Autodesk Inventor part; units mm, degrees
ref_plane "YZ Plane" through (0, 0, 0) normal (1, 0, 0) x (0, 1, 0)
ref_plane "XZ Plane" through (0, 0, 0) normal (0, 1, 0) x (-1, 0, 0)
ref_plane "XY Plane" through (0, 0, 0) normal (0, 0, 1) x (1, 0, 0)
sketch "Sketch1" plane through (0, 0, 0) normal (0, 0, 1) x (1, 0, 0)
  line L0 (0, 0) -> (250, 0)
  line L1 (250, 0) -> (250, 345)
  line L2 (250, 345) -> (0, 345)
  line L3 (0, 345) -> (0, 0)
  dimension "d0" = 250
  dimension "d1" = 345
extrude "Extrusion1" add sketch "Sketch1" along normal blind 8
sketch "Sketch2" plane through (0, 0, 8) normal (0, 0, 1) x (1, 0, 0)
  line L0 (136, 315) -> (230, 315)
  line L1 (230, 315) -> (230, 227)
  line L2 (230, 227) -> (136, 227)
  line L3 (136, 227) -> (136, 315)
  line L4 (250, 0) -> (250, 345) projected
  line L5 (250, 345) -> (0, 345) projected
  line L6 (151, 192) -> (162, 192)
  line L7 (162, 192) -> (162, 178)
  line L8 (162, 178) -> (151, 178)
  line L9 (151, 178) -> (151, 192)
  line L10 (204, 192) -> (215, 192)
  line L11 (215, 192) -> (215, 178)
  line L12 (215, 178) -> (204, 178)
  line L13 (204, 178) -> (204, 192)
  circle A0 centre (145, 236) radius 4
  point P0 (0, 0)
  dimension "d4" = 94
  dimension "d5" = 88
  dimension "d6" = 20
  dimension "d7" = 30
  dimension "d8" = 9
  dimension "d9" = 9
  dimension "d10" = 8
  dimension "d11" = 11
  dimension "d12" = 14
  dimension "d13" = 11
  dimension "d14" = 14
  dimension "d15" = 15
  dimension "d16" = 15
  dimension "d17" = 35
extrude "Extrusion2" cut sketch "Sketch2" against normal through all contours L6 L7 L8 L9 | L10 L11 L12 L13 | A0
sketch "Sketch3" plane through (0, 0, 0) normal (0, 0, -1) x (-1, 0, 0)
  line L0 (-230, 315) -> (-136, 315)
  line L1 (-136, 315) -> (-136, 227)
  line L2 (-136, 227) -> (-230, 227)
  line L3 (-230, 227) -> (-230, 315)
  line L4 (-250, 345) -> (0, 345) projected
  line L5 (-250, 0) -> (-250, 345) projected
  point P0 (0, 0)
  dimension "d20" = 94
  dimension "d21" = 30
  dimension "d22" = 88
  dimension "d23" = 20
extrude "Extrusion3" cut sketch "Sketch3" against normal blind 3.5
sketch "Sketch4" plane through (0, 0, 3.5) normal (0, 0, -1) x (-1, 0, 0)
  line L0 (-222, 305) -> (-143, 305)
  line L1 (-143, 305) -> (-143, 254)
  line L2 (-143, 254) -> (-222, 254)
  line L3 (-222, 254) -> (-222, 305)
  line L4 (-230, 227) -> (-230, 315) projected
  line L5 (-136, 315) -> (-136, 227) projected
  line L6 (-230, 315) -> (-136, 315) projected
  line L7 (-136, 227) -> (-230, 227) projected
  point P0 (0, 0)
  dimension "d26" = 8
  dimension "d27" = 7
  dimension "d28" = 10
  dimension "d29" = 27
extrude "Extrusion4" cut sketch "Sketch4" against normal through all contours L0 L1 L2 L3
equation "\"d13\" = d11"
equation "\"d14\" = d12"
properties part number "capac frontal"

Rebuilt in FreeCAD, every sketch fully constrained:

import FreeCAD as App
import Part
import Sketcher
Q = App.Units.Quantity

doc = App.newDocument("Part")
params = doc.addObject("Spreadsheet::Sheet", "Params")
for row, (alias, value) in enumerate([
    ("sketch1_width", "250 mm"),
    ("sketch1_height", "345 mm"),
    ("pad1_length", "8 mm"),
    ("sketch2_diameter", "8 mm"),
    ("sketch2_width", "11 mm"),
    ("sketch2_height", "14 mm"),
    ("sketch3_width", "94 mm"),
    ("sketch3_height", "88 mm"),
    ("pocket2_length", "3.5 mm"),
    ("sketch4_width", "79 mm"),
    ("sketch4_height", "51 mm"),
], start=1):
    params.set(f"A{row}", alias)
    params.set(f"B{row}", "=" + value)
    params.setAlias(f"B{row}", alias)

body = doc.addObject("PartDesign::Body", "Body")

# Sketch on XY plane
sketch1 = body.newObject("Sketcher::SketchObject", "Sketch")
sketch1.AttachmentSupport = (doc.getObject("XY_Plane"), [""])
sketch1.MapMode = "FlatFace"
sketch1.addGeometry([
    Part.LineSegment(App.Vector(0, 345, 0), App.Vector(0, 0, 0)),
    Part.LineSegment(App.Vector(0, 0, 0), App.Vector(250, 0, 0)),
    Part.LineSegment(App.Vector(250, 0, 0), App.Vector(250, 345, 0)),
    Part.LineSegment(App.Vector(250, 345, 0), App.Vector(0, 345, 0)),
], False)
sketch1.addConstraint([
    Sketcher.Constraint("Coincident", 0, 2, 1, 1),
    Sketcher.Constraint("Coincident", 1, 2, 2, 1),
    Sketcher.Constraint("Coincident", 2, 2, 3, 1),
    Sketcher.Constraint("Coincident", 3, 2, 0, 1),
    Sketcher.Constraint("Vertical", 0),
    Sketcher.Constraint("Horizontal", 1),
    Sketcher.Constraint("Vertical", 2),
    Sketcher.Constraint("Horizontal", 3),
    Sketcher.Constraint("Coincident", 0, 2, -1, 1),
    Sketcher.Constraint("DistanceX", 1, 1, 1, 2, Q("250 mm")),
    Sketcher.Constraint("DistanceY", 0, 2, 0, 1, Q("345 mm")),
])
sketch1.setExpression("Constraints[9]", "Params.sketch1_width")
sketch1.setExpression("Constraints[10]", "Params.sketch1_height")
pad1 = body.newObject("PartDesign::Pad", "Pad")
pad1.Profile = sketch1
pad1.setExpression("Length", "Params.pad1_length")

# Sketch on XY plane
sketch2 = body.newObject("Sketcher::SketchObject", "Sketch001")
sketch2.AttachmentSupport = (doc.getObject("XY_Plane"), [""])
sketch2.MapMode = "FlatFace"
sketch2.AttachmentOffset = App.Placement(App.Vector(0, 0, 8), App.Rotation())
sketch2.addGeometry([
    Part.LineSegment(App.Vector(162, 192, 0), App.Vector(151, 192, 0)),  # 0
    Part.LineSegment(App.Vector(151, 192, 0), App.Vector(151, 178, 0)),  # 1
    Part.LineSegment(App.Vector(151, 178, 0), App.Vector(162, 178, 0)),  # 2
    Part.LineSegment(App.Vector(162, 178, 0), App.Vector(162, 192, 0)),  # 3
    Part.LineSegment(App.Vector(215, 192, 0), App.Vector(204, 192, 0)),  # 4
    Part.LineSegment(App.Vector(204, 192, 0), App.Vector(204, 178, 0)),  # 5
    Part.LineSegment(App.Vector(204, 178, 0), App.Vector(215, 178, 0)),  # 6
    Part.LineSegment(App.Vector(215, 178, 0), App.Vector(215, 192, 0)),  # 7
    Part.Circle(App.Vector(145, 236, 0), App.Vector(0, 0, 1), 4),  # 8
], False)
sketch2.addConstraint([
    Sketcher.Constraint("Coincident", 0, 2, 1, 1),
    Sketcher.Constraint("Coincident", 1, 2, 2, 1),
    Sketcher.Constraint("Coincident", 2, 2, 3, 1),
    Sketcher.Constraint("Coincident", 3, 2, 0, 1),
    Sketcher.Constraint("Coincident", 4, 2, 5, 1),
    Sketcher.Constraint("Coincident", 5, 2, 6, 1),
    Sketcher.Constraint("Coincident", 6, 2, 7, 1),
    Sketcher.Constraint("Coincident", 7, 2, 4, 1),
    Sketcher.Constraint("Horizontal", 0),
    Sketcher.Constraint("Vertical", 1),
    Sketcher.Constraint("Horizontal", 2),
    Sketcher.Constraint("Vertical", 3),
    Sketcher.Constraint("Horizontal", 4),
    Sketcher.Constraint("Vertical", 5),
    Sketcher.Constraint("Horizontal", 6),
    Sketcher.Constraint("Vertical", 7),
    Sketcher.Constraint("Horizontal", 3, 2, 4, 2),
    Sketcher.Constraint("Horizontal", 2, 2, 5, 2),
    Sketcher.Constraint("Equal", 2, 4),
    Sketcher.Constraint("Diameter", 8, Q("8 mm")),
    Sketcher.Constraint("DistanceX", 0, 2, 0, 1, Q("11 mm")),
    Sketcher.Constraint("DistanceY", 1, 2, 1, 1, Q("14 mm")),
    Sketcher.Constraint("DistanceX", -1, 1, 8, 3, Q("145 mm")),
    Sketcher.Constraint("DistanceY", -1, 1, 8, 3, Q("236 mm")),
    Sketcher.Constraint("DistanceX", -1, 1, 0, 2, Q("151 mm")),
    Sketcher.Constraint("DistanceY", -1, 1, 0, 2, Q("192 mm")),
    Sketcher.Constraint("DistanceX", -1, 1, 4, 2, Q("204 mm")),
])
sketch2.setExpression("Constraints[19]", "Params.sketch2_diameter")
sketch2.setExpression("Constraints[20]", "Params.sketch2_width")
sketch2.setExpression("Constraints[21]", "Params.sketch2_height")
pocket1 = body.newObject("PartDesign::Pocket", "Pocket")
pocket1.Profile = sketch2
pocket1.Type = "ThroughAll"

# Sketch on XY plane
sketch3 = body.newObject("Sketcher::SketchObject", "Sketch002")
sketch3.AttachmentSupport = (doc.getObject("XY_Plane"), [""])
sketch3.MapMode = "FlatFace"
sketch3.addGeometry([
    Part.LineSegment(App.Vector(136, 315, 0), App.Vector(230, 315, 0)),
    Part.LineSegment(App.Vector(230, 315, 0), App.Vector(230, 227, 0)),
    Part.LineSegment(App.Vector(230, 227, 0), App.Vector(136, 227, 0)),
    Part.LineSegment(App.Vector(136, 227, 0), App.Vector(136, 315, 0)),
], False)
sketch3.addConstraint([
    Sketcher.Constraint("Coincident", 0, 2, 1, 1),
    Sketcher.Constraint("Coincident", 1, 2, 2, 1),
    Sketcher.Constraint("Coincident", 2, 2, 3, 1),
    Sketcher.Constraint("Coincident", 3, 2, 0, 1),
    Sketcher.Constraint("Horizontal", 0),
    Sketcher.Constraint("Vertical", 1),
    Sketcher.Constraint("Horizontal", 2),
    Sketcher.Constraint("Vertical", 3),
    Sketcher.Constraint("DistanceX", 0, 1, 0, 2, Q("94 mm")),
    Sketcher.Constraint("DistanceY", 1, 2, 1, 1, Q("88 mm")),
    Sketcher.Constraint("DistanceX", -1, 1, 0, 2, Q("230 mm")),
    Sketcher.Constraint("DistanceY", -1, 1, 0, 2, Q("315 mm")),
])
sketch3.setExpression("Constraints[8]", "Params.sketch3_width")
sketch3.setExpression("Constraints[9]", "Params.sketch3_height")
pocket2 = body.newObject("PartDesign::Pocket", "Pocket001")
pocket2.Profile = sketch3
pocket2.setExpression("Length", "Params.pocket2_length")
pocket2.Reversed = True

# Sketch on XY plane
sketch4 = body.newObject("Sketcher::SketchObject", "Sketch003")
sketch4.AttachmentSupport = (doc.getObject("XY_Plane"), [""])
sketch4.MapMode = "FlatFace"
sketch4.AttachmentOffset = App.Placement(App.Vector(0, 0, 3.5), App.Rotation())
sketch4.addGeometry([
    Part.LineSegment(App.Vector(143, 305, 0), App.Vector(222, 305, 0)),
    Part.LineSegment(App.Vector(222, 305, 0), App.Vector(222, 254, 0)),
    Part.LineSegment(App.Vector(222, 254, 0), App.Vector(143, 254, 0)),
    Part.LineSegment(App.Vector(143, 254, 0), App.Vector(143, 305, 0)),
], False)
sketch4.addConstraint([
    Sketcher.Constraint("Coincident", 0, 2, 1, 1),
    Sketcher.Constraint("Coincident", 1, 2, 2, 1),
    Sketcher.Constraint("Coincident", 2, 2, 3, 1),
    Sketcher.Constraint("Coincident", 3, 2, 0, 1),
    Sketcher.Constraint("Horizontal", 0),
    Sketcher.Constraint("Vertical", 1),
    Sketcher.Constraint("Horizontal", 2),
    Sketcher.Constraint("Vertical", 3),
    Sketcher.Constraint("DistanceX", 0, 1, 0, 2, Q("79 mm")),
    Sketcher.Constraint("DistanceY", 1, 2, 1, 1, Q("51 mm")),
    Sketcher.Constraint("DistanceX", -1, 1, 0, 2, Q("222 mm")),
    Sketcher.Constraint("DistanceY", -1, 1, 0, 2, Q("305 mm")),
])
sketch4.setExpression("Constraints[8]", "Params.sketch4_width")
sketch4.setExpression("Constraints[9]", "Params.sketch4_height")
pocket3 = body.newObject("PartDesign::Pocket", "Pocket002")
pocket3.Profile = sketch4
pocket3.Type = "ThroughAll"
pocket3.Reversed = True

doc.recompute()
